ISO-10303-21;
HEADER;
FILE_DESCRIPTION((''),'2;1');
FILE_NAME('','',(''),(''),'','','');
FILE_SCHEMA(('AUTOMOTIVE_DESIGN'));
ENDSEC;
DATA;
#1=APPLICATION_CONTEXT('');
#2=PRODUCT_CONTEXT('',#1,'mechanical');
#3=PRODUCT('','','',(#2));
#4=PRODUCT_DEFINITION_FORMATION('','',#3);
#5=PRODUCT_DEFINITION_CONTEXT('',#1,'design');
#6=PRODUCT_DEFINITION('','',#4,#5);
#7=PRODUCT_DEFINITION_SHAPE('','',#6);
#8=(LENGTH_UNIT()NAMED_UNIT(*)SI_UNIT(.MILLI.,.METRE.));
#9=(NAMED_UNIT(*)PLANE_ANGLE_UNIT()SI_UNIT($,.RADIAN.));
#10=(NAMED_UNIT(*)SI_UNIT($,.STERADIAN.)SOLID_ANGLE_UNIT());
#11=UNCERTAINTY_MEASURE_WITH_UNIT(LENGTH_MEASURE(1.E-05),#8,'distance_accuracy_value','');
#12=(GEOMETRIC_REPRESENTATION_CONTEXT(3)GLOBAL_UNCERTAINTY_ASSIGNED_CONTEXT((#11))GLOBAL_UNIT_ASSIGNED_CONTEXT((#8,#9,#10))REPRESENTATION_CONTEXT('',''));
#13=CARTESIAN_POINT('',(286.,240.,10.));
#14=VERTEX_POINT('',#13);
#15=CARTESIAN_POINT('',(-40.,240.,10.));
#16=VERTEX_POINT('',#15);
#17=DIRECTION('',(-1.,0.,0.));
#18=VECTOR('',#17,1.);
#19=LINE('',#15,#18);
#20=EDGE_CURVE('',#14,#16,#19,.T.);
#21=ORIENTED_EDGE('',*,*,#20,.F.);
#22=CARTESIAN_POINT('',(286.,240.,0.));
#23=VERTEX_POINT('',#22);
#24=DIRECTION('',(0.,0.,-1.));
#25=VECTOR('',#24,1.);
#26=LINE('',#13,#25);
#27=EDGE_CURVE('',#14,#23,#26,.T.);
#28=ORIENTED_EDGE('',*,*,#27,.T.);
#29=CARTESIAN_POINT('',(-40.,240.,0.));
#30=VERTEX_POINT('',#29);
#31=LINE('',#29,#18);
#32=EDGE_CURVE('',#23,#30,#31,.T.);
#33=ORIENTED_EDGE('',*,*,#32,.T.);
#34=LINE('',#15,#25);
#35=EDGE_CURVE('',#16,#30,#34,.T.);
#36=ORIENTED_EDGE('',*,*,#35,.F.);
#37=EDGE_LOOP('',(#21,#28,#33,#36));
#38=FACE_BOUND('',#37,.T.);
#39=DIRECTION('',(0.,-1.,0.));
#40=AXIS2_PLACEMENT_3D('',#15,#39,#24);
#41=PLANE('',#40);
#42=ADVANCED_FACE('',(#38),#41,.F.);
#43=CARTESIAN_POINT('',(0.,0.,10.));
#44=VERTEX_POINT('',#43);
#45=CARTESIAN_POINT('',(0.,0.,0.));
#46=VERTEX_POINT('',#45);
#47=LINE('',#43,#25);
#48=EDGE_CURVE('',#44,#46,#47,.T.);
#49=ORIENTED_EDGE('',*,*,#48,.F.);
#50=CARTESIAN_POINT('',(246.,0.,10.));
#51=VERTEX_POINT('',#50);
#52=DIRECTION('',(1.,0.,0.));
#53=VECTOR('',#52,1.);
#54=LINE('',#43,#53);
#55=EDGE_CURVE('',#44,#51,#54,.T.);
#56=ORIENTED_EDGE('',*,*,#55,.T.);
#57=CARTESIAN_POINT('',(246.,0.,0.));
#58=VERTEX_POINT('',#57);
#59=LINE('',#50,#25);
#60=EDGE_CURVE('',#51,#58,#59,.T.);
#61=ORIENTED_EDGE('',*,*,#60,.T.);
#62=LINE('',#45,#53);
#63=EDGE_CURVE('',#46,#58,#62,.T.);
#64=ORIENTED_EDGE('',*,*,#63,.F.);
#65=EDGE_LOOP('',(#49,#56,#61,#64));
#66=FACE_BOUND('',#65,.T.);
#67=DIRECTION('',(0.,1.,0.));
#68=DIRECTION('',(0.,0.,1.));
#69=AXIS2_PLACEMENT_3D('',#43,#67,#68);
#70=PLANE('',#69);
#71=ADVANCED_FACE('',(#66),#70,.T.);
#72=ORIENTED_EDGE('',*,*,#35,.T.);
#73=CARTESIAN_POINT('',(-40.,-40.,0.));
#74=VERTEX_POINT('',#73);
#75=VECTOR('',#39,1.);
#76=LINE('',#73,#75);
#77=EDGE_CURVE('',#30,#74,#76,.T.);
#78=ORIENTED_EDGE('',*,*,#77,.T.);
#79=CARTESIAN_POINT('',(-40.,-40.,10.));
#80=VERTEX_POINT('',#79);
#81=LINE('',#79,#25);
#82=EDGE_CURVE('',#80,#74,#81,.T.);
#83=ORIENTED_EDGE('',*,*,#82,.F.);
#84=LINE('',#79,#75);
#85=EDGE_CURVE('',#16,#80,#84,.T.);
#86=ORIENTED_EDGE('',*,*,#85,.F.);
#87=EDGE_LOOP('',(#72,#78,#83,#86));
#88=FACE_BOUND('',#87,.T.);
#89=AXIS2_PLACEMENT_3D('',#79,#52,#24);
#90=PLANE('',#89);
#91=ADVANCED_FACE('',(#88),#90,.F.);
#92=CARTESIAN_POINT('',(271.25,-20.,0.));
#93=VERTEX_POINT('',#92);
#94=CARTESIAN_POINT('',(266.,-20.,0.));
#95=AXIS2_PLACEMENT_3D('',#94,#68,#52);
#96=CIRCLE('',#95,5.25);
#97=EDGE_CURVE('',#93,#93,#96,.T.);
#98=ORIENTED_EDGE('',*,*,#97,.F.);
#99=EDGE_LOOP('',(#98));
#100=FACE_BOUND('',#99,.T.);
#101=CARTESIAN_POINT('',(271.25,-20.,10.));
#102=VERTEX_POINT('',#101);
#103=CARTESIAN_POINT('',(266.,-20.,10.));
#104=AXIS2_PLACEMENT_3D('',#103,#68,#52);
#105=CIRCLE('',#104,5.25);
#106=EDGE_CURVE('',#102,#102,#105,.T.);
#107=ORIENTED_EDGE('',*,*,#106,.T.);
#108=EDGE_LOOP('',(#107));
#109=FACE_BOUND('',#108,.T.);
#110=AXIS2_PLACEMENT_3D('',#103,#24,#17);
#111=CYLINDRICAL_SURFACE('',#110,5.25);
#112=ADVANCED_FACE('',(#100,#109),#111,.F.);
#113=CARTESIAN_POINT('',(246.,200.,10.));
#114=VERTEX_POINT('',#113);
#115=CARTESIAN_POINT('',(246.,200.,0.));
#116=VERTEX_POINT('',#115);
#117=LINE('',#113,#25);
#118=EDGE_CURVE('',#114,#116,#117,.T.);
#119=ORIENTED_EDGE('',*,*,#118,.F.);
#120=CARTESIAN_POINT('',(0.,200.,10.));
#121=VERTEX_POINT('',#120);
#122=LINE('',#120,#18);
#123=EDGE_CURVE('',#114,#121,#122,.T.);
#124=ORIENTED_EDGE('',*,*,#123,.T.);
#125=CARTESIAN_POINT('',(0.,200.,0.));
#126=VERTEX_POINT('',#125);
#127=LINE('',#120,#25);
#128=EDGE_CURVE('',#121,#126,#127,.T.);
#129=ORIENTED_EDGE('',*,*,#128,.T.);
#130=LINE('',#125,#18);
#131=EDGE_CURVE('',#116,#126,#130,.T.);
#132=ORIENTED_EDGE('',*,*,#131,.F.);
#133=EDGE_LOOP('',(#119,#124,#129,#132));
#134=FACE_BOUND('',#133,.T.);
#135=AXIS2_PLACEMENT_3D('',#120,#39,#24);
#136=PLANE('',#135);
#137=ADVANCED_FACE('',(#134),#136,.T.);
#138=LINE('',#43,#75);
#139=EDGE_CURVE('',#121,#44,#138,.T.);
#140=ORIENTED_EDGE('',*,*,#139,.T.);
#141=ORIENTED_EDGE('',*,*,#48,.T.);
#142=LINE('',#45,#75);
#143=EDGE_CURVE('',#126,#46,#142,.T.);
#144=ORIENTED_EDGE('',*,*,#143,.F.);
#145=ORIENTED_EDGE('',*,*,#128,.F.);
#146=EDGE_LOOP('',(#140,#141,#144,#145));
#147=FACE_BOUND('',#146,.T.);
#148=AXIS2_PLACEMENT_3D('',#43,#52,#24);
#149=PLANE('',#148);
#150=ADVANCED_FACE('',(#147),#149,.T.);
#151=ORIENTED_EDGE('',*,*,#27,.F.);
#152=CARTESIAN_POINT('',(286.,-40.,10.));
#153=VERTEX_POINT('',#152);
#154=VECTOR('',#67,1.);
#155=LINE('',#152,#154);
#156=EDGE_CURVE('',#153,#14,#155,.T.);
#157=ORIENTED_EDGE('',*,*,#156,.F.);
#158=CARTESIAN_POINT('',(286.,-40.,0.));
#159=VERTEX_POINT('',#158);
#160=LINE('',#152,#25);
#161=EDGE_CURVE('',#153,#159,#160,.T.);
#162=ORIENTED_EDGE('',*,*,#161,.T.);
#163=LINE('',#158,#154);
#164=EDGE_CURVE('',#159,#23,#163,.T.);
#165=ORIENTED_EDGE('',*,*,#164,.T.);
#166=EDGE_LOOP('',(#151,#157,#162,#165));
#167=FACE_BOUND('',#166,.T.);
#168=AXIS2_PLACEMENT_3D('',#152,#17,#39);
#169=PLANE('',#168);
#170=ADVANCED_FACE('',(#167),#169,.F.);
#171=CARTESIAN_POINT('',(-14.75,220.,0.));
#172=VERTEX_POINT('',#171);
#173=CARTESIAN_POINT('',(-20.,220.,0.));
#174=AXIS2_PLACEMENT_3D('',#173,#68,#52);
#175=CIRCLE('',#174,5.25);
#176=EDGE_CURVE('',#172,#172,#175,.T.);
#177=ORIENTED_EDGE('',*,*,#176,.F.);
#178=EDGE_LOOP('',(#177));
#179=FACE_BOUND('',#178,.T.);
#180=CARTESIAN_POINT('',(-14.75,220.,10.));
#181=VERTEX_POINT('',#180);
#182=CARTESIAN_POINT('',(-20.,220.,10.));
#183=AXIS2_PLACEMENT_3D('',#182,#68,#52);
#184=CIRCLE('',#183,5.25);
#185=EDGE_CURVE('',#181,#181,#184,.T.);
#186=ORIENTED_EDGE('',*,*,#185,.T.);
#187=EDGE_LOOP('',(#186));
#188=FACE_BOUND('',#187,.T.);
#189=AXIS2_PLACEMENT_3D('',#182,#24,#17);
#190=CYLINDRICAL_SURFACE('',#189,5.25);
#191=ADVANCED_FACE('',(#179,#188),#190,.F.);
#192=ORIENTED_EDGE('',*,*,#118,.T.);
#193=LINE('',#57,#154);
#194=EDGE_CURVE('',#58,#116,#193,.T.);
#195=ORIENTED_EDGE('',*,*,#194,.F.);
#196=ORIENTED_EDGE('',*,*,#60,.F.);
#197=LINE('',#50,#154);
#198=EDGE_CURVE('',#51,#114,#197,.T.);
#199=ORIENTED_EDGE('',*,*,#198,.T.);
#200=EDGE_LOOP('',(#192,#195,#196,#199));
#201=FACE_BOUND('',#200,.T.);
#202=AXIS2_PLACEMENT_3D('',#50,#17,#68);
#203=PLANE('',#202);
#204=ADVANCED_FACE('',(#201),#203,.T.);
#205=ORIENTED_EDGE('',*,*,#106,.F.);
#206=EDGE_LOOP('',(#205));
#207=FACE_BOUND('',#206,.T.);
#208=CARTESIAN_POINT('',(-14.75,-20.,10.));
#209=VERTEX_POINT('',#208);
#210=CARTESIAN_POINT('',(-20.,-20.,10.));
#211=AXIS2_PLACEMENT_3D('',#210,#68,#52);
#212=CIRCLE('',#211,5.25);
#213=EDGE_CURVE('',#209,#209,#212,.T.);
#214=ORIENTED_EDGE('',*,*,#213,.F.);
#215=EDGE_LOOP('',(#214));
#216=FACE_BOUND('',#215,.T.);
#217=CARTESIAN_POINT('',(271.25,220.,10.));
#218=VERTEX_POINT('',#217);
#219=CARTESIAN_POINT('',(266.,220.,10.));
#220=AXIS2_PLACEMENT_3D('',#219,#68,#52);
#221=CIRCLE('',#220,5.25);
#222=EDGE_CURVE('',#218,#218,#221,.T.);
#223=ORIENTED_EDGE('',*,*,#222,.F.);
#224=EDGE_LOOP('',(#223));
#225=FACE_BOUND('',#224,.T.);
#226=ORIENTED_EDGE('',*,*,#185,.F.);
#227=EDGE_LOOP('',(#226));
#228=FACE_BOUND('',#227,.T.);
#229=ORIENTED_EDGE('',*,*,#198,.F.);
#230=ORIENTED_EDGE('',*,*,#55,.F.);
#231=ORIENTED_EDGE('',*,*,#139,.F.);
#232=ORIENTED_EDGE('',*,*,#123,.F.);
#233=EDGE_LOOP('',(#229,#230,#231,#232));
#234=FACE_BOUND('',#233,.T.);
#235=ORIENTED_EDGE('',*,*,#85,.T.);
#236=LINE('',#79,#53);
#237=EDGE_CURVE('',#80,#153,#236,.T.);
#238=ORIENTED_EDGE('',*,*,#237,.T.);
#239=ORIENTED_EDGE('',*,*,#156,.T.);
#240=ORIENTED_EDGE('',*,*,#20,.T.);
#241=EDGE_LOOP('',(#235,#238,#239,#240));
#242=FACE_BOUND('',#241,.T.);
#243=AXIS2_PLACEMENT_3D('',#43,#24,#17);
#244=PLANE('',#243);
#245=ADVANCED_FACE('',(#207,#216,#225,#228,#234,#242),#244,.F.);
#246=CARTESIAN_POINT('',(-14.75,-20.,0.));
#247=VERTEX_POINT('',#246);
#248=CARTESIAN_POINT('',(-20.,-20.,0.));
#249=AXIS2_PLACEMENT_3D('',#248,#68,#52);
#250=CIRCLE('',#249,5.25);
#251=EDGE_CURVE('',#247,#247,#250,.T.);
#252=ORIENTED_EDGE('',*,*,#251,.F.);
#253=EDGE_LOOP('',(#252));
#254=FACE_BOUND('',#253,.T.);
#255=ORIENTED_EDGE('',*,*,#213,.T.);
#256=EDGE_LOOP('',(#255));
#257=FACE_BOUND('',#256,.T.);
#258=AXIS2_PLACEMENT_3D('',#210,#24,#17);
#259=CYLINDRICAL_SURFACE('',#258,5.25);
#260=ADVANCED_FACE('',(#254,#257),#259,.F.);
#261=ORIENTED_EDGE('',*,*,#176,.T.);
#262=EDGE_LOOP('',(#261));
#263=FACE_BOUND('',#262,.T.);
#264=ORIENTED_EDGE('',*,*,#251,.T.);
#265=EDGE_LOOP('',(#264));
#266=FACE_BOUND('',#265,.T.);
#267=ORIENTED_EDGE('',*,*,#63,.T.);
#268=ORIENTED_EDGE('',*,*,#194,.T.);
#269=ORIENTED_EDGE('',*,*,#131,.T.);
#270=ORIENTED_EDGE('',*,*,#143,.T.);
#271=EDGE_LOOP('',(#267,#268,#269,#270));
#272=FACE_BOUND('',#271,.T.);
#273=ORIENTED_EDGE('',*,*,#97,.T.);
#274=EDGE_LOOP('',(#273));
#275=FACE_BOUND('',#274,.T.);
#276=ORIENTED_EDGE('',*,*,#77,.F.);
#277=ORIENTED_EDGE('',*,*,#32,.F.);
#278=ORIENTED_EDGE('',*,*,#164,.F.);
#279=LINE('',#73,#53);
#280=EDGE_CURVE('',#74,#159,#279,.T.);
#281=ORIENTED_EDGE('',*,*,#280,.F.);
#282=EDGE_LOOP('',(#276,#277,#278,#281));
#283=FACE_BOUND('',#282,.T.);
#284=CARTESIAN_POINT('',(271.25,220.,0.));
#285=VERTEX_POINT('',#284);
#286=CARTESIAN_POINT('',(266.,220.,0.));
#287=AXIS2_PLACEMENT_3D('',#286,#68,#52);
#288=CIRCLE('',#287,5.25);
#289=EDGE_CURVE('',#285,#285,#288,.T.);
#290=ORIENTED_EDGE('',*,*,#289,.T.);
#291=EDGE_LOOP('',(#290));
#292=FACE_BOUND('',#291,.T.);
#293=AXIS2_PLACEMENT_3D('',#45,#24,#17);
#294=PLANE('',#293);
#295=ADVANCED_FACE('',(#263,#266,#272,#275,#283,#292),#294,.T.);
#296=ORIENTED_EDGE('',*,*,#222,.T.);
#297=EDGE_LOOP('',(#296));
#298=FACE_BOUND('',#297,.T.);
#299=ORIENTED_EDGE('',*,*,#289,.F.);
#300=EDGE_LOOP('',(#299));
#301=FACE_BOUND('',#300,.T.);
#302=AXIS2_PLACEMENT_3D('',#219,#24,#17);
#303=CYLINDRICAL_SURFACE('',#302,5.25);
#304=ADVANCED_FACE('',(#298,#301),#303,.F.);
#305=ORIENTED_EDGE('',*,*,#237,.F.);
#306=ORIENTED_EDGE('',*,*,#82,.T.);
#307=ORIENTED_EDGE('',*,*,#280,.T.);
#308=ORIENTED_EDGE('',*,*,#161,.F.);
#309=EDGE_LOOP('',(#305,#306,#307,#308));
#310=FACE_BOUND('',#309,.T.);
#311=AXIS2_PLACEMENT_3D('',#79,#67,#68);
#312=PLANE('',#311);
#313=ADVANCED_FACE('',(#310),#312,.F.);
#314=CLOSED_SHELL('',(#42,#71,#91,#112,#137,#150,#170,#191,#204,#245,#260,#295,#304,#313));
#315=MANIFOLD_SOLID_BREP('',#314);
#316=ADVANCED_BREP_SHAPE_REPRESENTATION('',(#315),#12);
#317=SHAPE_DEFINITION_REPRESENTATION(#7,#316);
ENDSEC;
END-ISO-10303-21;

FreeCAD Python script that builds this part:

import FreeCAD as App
import Part
import Sketcher

V = App.Vector
Q = App.Units.Quantity

doc = App.newDocument("Part")
params = doc.addObject("Spreadsheet::Sheet", "Params")
for row, (alias, value) in enumerate([
    ("sketch1_diameter", "10.5 mm"),
    ("sketch1_width", "326 mm"),
    ("sketch1_width2", "246 mm"),
    ("sketch1_height", "280 mm"),
    ("sketch1_height2", "200 mm"),
    ("pad1_length", "10 mm"),
], start=1):
    params.set(f"A{row}", alias)
    params.set(f"B{row}", "=" + value)
    params.setAlias(f"B{row}", alias)

body = doc.addObject("PartDesign::Body", "Body")

# Sketch on XY plane
sketch1 = body.newObject("Sketcher::SketchObject", "Sketch")
sketch1.AttachmentSupport = (doc.getObject("XY_Plane"), [""])
sketch1.MapMode = "FlatFace"
sketch1.addGeometry([
    Part.LineSegment(V(-40, 240, 0), V(-40, -40, 0)),  # 0
    Part.LineSegment(V(-40, -40, 0), V(286, -40, 0)),  # 1
    Part.LineSegment(V(286, -40, 0), V(286, 240, 0)),  # 2
    Part.LineSegment(V(286, 240, 0), V(-40, 240, 0)),  # 3
    Part.Circle(V(-20, -20, 0), V(0, 0, 1), 5.25),  # 4
    Part.Circle(V(266, -20, 0), V(0, 0, 1), 5.25),  # 5
    Part.LineSegment(V(246, 0, 0), V(0, 0, 0)),  # 6
    Part.LineSegment(V(0, 0, 0), V(0, 200, 0)),  # 7
    Part.LineSegment(V(0, 200, 0), V(246, 200, 0)),  # 8
    Part.LineSegment(V(246, 200, 0), V(246, 0, 0)),  # 9
    Part.Circle(V(-20, 220, 0), V(0, 0, 1), 5.25),  # 10
    Part.Circle(V(266, 220, 0), V(0, 0, 1), 5.25),  # 11
], False)
sketch1.addConstraint([
    Sketcher.Constraint("Coincident", 0, 2, 1, 1),
    Sketcher.Constraint("Coincident", 1, 2, 2, 1),
    Sketcher.Constraint("Coincident", 2, 2, 3, 1),
    Sketcher.Constraint("Coincident", 3, 2, 0, 1),
    Sketcher.Constraint("Coincident", 6, 2, 7, 1),
    Sketcher.Constraint("Coincident", 7, 2, 8, 1),
    Sketcher.Constraint("Coincident", 8, 2, 9, 1),
    Sketcher.Constraint("Coincident", 9, 2, 6, 1),
    Sketcher.Constraint("Vertical", 0),
    Sketcher.Constraint("Horizontal", 1),
    Sketcher.Constraint("Vertical", 2),
    Sketcher.Constraint("Horizontal", 3),
    Sketcher.Constraint("Horizontal", 6),
    Sketcher.Constraint("Vertical", 7),
    Sketcher.Constraint("Horizontal", 8),
    Sketcher.Constraint("Vertical", 9),
    Sketcher.Constraint("Coincident", 6, 2, -1, 1),
    Sketcher.Constraint("Equal", 4, 5),
    Sketcher.Constraint("Equal", 5, 10),
    Sketcher.Constraint("Equal", 10, 11),
    Sketcher.Constraint("Horizontal", 4, 3, 5, 3),
    Sketcher.Constraint("Horizontal", 10, 3, 11, 3),
    Sketcher.Constraint("Vertical", 4, 3, 10, 3),
    Sketcher.Constraint("Vertical", 5, 3, 11, 3),
    Sketcher.Constraint("Diameter", 4, Q("10.5 mm")),
    Sketcher.Constraint("DistanceX", 1, 1, 1, 2, Q("326 mm")),
    Sketcher.Constraint("DistanceX", 6, 2, 6, 1, Q("246 mm")),
    Sketcher.Constraint("DistanceY", 0, 2, 0, 1, Q("280 mm")),
    Sketcher.Constraint("DistanceY", 7, 1, 7, 2, Q("200 mm")),
    Sketcher.Constraint("DistanceX", 4, 3, -1, 1, Q("20 mm")),
    Sketcher.Constraint("DistanceY", 4, 3, -1, 1, Q("20 mm")),
    Sketcher.Constraint("DistanceX", -1, 1, 5, 3, Q("266 mm")),
    Sketcher.Constraint("DistanceY", -1, 1, 10, 3, Q("220 mm")),
    Sketcher.Constraint("DistanceX", 0, 2, -1, 1, Q("40 mm")),
    Sketcher.Constraint("DistanceY", 0, 2, -1, 1, Q("40 mm")),
])
sketch1.setExpression("Constraints[24]", "Params.sketch1_diameter")
sketch1.setExpression("Constraints[25]", "Params.sketch1_width")
sketch1.setExpression("Constraints[26]", "Params.sketch1_width2")
sketch1.setExpression("Constraints[27]", "Params.sketch1_height")
sketch1.setExpression("Constraints[28]", "Params.sketch1_height2")
pad1 = body.newObject("PartDesign::Pad", "Pad")
pad1.Profile = sketch1
pad1.setExpression("Length", "Params.pad1_length")

doc.recompute()
